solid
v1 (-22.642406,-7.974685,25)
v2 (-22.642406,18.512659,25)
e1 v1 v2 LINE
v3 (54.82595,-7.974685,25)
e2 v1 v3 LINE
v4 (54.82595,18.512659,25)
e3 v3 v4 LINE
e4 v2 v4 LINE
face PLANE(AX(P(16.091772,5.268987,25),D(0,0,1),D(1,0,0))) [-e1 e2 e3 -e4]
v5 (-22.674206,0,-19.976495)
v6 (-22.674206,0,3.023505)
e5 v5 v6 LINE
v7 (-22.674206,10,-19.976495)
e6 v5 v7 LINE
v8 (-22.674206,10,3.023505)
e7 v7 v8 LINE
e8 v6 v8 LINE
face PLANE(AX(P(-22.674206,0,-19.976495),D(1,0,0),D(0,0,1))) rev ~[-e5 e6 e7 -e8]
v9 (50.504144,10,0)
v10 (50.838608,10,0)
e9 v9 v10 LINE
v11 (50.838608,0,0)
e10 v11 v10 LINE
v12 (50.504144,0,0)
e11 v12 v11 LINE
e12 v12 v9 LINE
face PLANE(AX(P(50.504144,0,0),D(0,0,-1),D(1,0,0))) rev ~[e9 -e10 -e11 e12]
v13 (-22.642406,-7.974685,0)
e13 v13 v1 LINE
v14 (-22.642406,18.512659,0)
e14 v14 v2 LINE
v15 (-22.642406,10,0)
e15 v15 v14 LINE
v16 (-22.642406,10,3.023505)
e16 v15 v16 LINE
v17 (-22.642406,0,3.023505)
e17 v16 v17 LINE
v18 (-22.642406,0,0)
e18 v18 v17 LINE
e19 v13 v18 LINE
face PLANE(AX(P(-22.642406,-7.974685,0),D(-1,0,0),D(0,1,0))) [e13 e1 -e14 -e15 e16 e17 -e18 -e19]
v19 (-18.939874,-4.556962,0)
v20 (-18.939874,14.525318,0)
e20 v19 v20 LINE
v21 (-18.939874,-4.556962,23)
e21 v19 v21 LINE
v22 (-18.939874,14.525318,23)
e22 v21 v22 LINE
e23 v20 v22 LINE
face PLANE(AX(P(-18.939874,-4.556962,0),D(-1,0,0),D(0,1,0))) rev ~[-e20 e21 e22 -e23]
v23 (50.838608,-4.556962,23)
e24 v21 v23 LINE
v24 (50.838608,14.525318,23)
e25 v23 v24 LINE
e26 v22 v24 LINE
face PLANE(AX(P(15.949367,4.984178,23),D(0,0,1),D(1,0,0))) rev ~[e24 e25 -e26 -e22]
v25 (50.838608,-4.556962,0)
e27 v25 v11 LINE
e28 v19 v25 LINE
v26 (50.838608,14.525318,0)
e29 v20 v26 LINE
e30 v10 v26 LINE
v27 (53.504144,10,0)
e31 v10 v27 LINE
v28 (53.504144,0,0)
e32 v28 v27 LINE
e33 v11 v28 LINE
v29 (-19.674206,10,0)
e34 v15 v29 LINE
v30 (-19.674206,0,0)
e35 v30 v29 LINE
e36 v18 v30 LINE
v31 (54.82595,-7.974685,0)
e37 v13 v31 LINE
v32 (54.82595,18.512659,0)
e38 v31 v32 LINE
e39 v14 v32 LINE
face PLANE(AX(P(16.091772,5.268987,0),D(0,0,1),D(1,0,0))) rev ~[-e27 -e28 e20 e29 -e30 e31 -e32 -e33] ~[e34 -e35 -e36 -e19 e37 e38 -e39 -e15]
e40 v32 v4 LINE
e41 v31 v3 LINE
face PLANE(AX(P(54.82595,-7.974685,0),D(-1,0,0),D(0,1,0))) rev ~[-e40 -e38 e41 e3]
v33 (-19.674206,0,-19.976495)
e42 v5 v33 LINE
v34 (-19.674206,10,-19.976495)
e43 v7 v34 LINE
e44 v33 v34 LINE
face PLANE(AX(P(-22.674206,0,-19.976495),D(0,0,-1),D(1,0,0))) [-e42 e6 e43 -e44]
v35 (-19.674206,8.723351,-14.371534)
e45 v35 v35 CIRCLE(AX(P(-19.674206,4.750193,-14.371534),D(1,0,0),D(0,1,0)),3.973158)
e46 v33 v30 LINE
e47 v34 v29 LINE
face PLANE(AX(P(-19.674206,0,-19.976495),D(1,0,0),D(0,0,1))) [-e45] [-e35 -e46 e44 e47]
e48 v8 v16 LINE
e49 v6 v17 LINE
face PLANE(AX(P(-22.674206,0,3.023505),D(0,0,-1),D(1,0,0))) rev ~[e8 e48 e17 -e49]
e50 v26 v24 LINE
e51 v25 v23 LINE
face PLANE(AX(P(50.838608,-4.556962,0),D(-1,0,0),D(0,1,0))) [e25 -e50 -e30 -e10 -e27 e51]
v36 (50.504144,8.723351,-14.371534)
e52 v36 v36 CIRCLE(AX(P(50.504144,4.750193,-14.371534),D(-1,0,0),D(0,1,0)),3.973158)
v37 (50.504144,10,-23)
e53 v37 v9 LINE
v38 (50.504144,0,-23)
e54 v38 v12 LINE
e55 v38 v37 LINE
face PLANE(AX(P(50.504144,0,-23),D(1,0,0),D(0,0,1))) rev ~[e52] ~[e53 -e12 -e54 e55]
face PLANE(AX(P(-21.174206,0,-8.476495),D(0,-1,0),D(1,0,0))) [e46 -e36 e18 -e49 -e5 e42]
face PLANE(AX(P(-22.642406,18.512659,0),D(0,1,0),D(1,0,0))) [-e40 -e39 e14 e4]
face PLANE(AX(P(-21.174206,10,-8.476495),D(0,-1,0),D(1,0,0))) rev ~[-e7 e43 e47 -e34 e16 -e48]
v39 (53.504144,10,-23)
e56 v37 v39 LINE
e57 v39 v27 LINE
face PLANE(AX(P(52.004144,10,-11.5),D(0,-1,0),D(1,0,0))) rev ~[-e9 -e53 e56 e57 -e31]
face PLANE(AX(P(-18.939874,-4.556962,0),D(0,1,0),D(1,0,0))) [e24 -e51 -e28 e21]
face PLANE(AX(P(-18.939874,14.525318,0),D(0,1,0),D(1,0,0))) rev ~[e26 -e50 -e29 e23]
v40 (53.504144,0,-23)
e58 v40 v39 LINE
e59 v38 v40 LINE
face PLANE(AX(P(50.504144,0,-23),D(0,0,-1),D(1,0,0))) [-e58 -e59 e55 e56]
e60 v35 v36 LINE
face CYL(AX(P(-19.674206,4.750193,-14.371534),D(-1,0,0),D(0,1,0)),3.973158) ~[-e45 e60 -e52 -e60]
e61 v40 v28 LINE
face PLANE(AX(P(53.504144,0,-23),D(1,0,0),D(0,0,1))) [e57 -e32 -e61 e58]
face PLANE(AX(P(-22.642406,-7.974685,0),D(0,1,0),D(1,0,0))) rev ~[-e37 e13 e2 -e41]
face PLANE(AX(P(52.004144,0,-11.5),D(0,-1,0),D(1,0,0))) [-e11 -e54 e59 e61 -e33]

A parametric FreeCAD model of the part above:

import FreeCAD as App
import Part
import Sketcher

V = App.Vector
Q = App.Units.Quantity

doc = App.newDocument("Part")
body = doc.addObject("PartDesign::Body", "Body")

# Sketch on XY plane
sketch1 = body.newObject("Sketcher::SketchObject", "Sketch")
sketch1.AttachmentSupport = (doc.getObject("XY_Plane"), [""])
sketch1.MapMode = "FlatFace"
sketch1.addGeometry(Part.LineSegment(V(-22.642406, 18.512659, 0), V(-22.642406, -7.974685, 0)), False)
sketch1.addGeometry(Part.LineSegment(V(-22.642406, -7.974685, 0), V(54.82595, -7.974685, 0)), False)
sketch1.addGeometry(Part.LineSegment(V(54.82595, -7.974685, 0), V(54.82595, 18.512659, 0)), False)
sketch1.addGeometry(Part.LineSegment(V(54.82595, 18.512659, 0), V(-22.642406, 18.512659, 0)), False)
sketch1.addConstraint(Sketcher.Constraint("Coincident", 0, 2, 1, 1))
sketch1.addConstraint(Sketcher.Constraint("Coincident", 1, 2, 2, 1))
sketch1.addConstraint(Sketcher.Constraint("Coincident", 2, 2, 3, 1))
sketch1.addConstraint(Sketcher.Constraint("Coincident", 3, 2, 0, 1))
sketch1.addConstraint(Sketcher.Constraint("Vertical", 0))
sketch1.addConstraint(Sketcher.Constraint("Horizontal", 1))
sketch1.addConstraint(Sketcher.Constraint("Vertical", 2))
sketch1.addConstraint(Sketcher.Constraint("Horizontal", 3))
sketch1.addConstraint(Sketcher.Constraint("DistanceX", 1, 1, 1, 2, Q("77.468356 mm")))
sketch1.addConstraint(Sketcher.Constraint("DistanceY", 0, 2, 0, 1, Q("26.487343 mm")))
sketch1.addConstraint(Sketcher.Constraint("DistanceX", -1, 1, 1, 2, Q("54.82595 mm")))
sketch1.addConstraint(Sketcher.Constraint("DistanceY", -1, 1, 2, 2, Q("18.512659 mm")))
pad1 = body.newObject("PartDesign::Pad", "Pad")
pad1.Profile = sketch1
pad1.Length = 25

# Sketch on XY plane
sketch2 = body.newObject("Sketcher::SketchObject", "Sketch001")
sketch2.AttachmentSupport = (doc.getObject("XY_Plane"), [""])
sketch2.MapMode = "FlatFace"
sketch2.addGeometry(Part.LineSegment(V(-18.939874, 14.525318, 0), V(-18.939874, -4.556962, 0)), False)
sketch2.addGeometry(Part.LineSegment(V(-18.939874, -4.556962, 0), V(50.838608, -4.556962, 0)), False)
sketch2.addGeometry(Part.LineSegment(V(50.838608, -4.556962, 0), V(50.838608, 14.525318, 0)), False)
sketch2.addGeometry(Part.LineSegment(V(50.838608, 14.525318, 0), V(-18.939874, 14.525318, 0)), False)
sketch2.addConstraint(Sketcher.Constraint("Coincident", 0, 2, 1, 1))
sketch2.addConstraint(Sketcher.Constraint("Coincident", 1, 2, 2, 1))
sketch2.addConstraint(Sketcher.Constraint("Coincident", 2, 2, 3, 1))
sketch2.addConstraint(Sketcher.Constraint("Coincident", 3, 2, 0, 1))
sketch2.addConstraint(Sketcher.Constraint("Vertical", 0))
sketch2.addConstraint(Sketcher.Constraint("Horizontal", 1))
sketch2.addConstraint(Sketcher.Constraint("Vertical", 2))
sketch2.addConstraint(Sketcher.Constraint("Horizontal", 3))
sketch2.addConstraint(Sketcher.Constraint("DistanceY", 0, 2, 0, 1, Q("19.08228 mm")))
sketch2.addConstraint(Sketcher.Constraint("DistanceX", 1, 1, 1, 2, Q("69.778483 mm")))
sketch2.addConstraint(Sketcher.Constraint("DistanceX", -1, 1, 1, 2, Q("50.838608 mm")))
sketch2.addConstraint(Sketcher.Constraint("DistanceY", 0, 2, -1, 1, Q("4.556962 mm")))
pocket1 = body.newObject("PartDesign::Pocket", "Pocket")
pocket1.Profile = sketch2
pocket1.Length = 23
pocket1.Reversed = True

# Sketch on XZ plane
sketch3 = body.newObject("Sketcher::SketchObject", "Sketch002")
sketch3.AttachmentSupport = (doc.getObject("XZ_Plane"), [""])
sketch3.MapMode = "FlatFace"
sketch3.addGeometry(Part.LineSegment(V(-22.674206, 3.023505, 0), V(-22.674206, -19.976495, 0)), False)
sketch3.addGeometry(Part.LineSegment(V(-22.674206, -19.976495, 0), V(-19.674206, -19.976495, 0)), False)
sketch3.addGeometry(Part.LineSegment(V(-19.674206, -19.976495, 0), V(-19.674206, 3.023505, 0)), False)
sketch3.addGeometry(Part.LineSegment(V(-19.674206, 3.023505, 0), V(-22.674206, 3.023505, 0)), False)
sketch3.addGeometry(Part.LineSegment(V(50.504144, 0, 0), V(50.504144, -23, 0)), False)
sketch3.addGeometry(Part.LineSegment(V(50.504144, -23, 0), V(53.504144, -23, 0)), False)
sketch3.addGeometry(Part.LineSegment(V(53.504144, -23, 0), V(53.504144, 0, 0)), False)
sketch3.addGeometry(Part.LineSegment(V(53.504144, 0, 0), V(50.504144, 0, 0)), False)
sketch3.addConstraint(Sketcher.Constraint("Coincident", 0, 2, 1, 1))
sketch3.addConstraint(Sketcher.Constraint("Coincident", 1, 2, 2, 1))
sketch3.addConstraint(Sketcher.Constraint("Coincident", 2, 2, 3, 1))
sketch3.addConstraint(Sketcher.Constraint("Coincident", 3, 2, 0, 1))
sketch3.addConstraint(Sketcher.Constraint("Coincident", 4, 2, 5, 1))
sketch3.addConstraint(Sketcher.Constraint("Coincident", 5, 2, 6, 1))
sketch3.addConstraint(Sketcher.Constraint("Coincident", 6, 2, 7, 1))
sketch3.addConstraint(Sketcher.Constraint("Coincident", 7, 2, 4, 1))
sketch3.addConstraint(Sketcher.Constraint("Vertical", 0))
sketch3.addConstraint(Sketcher.Constraint("Horizontal", 1))
sketch3.addConstraint(Sketcher.Constraint("Vertical", 2))
sketch3.addConstraint(Sketcher.Constraint("Horizontal", 3))
sketch3.addConstraint(Sketcher.Constraint("Vertical", 4))
sketch3.addConstraint(Sketcher.Constraint("Horizontal", 5))
sketch3.addConstraint(Sketcher.Constraint("Vertical", 6))
sketch3.addConstraint(Sketcher.Constraint("Horizontal", 7))
sketch3.addConstraint(Sketcher.Constraint("PointOnObject", 6, 2, -1))
sketch3.addConstraint(Sketcher.Constraint("Equal", 3, 5))
sketch3.addConstraint(Sketcher.Constraint("Equal", 2, 4))
sketch3.addConstraint(Sketcher.Constraint("DistanceX", 1, 1, 1, 2, Q("3 mm")))
sketch3.addConstraint(Sketcher.Constraint("DistanceY", 0, 2, 0, 1, Q("23 mm")))
sketch3.addConstraint(Sketcher.Constraint("DistanceX", 1, 2, 4, 2, Q("70.17835 mm")))
sketch3.addConstraint(Sketcher.Constraint("DistanceX", 0, 2, -1, 1, Q("22.674206 mm")))
sketch3.addConstraint(Sketcher.Constraint("DistanceY", 0, 2, -1, 1, Q("19.976495 mm")))
pad2 = body.newObject("PartDesign::Pad", "Pad001")
pad2.Profile = sketch3
pad2.Length = 10
pad2.Reversed = True

# Sketch on YZ plane
sketch4 = body.newObject("Sketcher::SketchObject", "Sketch003")
sketch4.AttachmentSupport = (doc.getObject("YZ_Plane"), [""])
sketch4.MapMode = "FlatFace"
sketch4.AttachmentOffset = App.Placement(V(0, 0, -19.674206), App.Rotation())
sketch4.addGeometry(Part.Circle(V(4.750193, -14.371534, 0), V(0, 0, 1), 3.973158), False)
sketch4.addConstraint(Sketcher.Constraint("Diameter", 0, Q("7.946316 mm")))
sketch4.addConstraint(Sketcher.Constraint("DistanceX", -1, 1, 0, 3, Q("4.750193 mm")))
sketch4.addConstraint(Sketcher.Constraint("DistanceY", 0, 3, -1, 1, Q("14.371534 mm")))
pad3 = body.newObject("PartDesign::Pad", "Pad002")
pad3.Profile = sketch4
pad3.Length = 72

doc.recompute()
